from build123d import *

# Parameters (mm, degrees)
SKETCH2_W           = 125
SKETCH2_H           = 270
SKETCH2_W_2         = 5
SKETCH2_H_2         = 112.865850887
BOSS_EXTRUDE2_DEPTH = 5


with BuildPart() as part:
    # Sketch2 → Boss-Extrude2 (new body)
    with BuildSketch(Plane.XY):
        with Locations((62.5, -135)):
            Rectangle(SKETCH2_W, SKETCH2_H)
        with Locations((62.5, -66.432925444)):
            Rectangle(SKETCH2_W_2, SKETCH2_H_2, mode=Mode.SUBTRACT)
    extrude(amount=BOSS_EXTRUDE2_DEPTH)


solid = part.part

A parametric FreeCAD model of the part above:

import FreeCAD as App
import Part
import Sketcher
from FreeCAD import Vector


def add_polygon(sketch, points):
    """Adds a closed chain of lines whose ends are joined by coincident constraints."""
    first, n = sketch.GeometryCount, len(points)
    for a, b in zip(points, points[1:] + points[:1]):
        sketch.addGeometry(Part.LineSegment(App.Vector(*a, 0), App.Vector(*b, 0)), False)
    for i in range(n):
        sketch.addConstraint(Sketcher.Constraint("Coincident", first + i, 2, first + (i + 1) % n, 1))

doc = App.newDocument("Part")
body = doc.addObject("PartDesign::Body", "Body")

# Sketch on XY plane
sketch1 = body.newObject("Sketcher::SketchObject", "Sketch")
sketch1.AttachmentSupport = (doc.getObject("XY_Plane"), [""])
sketch1.MapMode = "FlatFace"
add_polygon(sketch1, [(0, 0), (0, -270), (125, -270), (125, 0)])  # lines 0-3
add_polygon(sketch1, [(65, -123), (60, -123), (60, -10), (65, -10)])  # lines 4-7
sketch1.addConstraint(Sketcher.Constraint("Vertical", 0))
sketch1.addConstraint(Sketcher.Constraint("Horizontal", 1))
sketch1.addConstraint(Sketcher.Constraint("Vertical", 2))
sketch1.addConstraint(Sketcher.Constraint("Horizontal", 3))
sketch1.addConstraint(Sketcher.Constraint("Horizontal", 4))
sketch1.addConstraint(Sketcher.Constraint("Vertical", 5))
sketch1.addConstraint(Sketcher.Constraint("Horizontal", 6))
sketch1.addConstraint(Sketcher.Constraint("Vertical", 7))
sketch1.addConstraint(Sketcher.Constraint("Coincident", 3, 2, -1, 1))
sketch1.addConstraint(Sketcher.Constraint("DistanceX", 1, 1, 1, 2, 125.0))
sketch1.addConstraint(Sketcher.Constraint("DistanceX", 4, 2, 4, 1, 5.0))
sketch1.addConstraint(Sketcher.Constraint("DistanceY", 0, 2, 0, 1, 270.0))
sketch1.addConstraint(Sketcher.Constraint("DistanceX", -1, 1, 4, 2, 60.0))
sketch1.addConstraint(Sketcher.Constraint("DistanceY", 5, 2, -1, 1, 10.0))
sketch1.addConstraint(Sketcher.Constraint("DistanceY", 5, 1, 5, 2, 112.865851))
pad1 = body.newObject("PartDesign::Pad", "Pad")
pad1.Profile = sketch1
pad1.Length = 5

doc.recompute()
